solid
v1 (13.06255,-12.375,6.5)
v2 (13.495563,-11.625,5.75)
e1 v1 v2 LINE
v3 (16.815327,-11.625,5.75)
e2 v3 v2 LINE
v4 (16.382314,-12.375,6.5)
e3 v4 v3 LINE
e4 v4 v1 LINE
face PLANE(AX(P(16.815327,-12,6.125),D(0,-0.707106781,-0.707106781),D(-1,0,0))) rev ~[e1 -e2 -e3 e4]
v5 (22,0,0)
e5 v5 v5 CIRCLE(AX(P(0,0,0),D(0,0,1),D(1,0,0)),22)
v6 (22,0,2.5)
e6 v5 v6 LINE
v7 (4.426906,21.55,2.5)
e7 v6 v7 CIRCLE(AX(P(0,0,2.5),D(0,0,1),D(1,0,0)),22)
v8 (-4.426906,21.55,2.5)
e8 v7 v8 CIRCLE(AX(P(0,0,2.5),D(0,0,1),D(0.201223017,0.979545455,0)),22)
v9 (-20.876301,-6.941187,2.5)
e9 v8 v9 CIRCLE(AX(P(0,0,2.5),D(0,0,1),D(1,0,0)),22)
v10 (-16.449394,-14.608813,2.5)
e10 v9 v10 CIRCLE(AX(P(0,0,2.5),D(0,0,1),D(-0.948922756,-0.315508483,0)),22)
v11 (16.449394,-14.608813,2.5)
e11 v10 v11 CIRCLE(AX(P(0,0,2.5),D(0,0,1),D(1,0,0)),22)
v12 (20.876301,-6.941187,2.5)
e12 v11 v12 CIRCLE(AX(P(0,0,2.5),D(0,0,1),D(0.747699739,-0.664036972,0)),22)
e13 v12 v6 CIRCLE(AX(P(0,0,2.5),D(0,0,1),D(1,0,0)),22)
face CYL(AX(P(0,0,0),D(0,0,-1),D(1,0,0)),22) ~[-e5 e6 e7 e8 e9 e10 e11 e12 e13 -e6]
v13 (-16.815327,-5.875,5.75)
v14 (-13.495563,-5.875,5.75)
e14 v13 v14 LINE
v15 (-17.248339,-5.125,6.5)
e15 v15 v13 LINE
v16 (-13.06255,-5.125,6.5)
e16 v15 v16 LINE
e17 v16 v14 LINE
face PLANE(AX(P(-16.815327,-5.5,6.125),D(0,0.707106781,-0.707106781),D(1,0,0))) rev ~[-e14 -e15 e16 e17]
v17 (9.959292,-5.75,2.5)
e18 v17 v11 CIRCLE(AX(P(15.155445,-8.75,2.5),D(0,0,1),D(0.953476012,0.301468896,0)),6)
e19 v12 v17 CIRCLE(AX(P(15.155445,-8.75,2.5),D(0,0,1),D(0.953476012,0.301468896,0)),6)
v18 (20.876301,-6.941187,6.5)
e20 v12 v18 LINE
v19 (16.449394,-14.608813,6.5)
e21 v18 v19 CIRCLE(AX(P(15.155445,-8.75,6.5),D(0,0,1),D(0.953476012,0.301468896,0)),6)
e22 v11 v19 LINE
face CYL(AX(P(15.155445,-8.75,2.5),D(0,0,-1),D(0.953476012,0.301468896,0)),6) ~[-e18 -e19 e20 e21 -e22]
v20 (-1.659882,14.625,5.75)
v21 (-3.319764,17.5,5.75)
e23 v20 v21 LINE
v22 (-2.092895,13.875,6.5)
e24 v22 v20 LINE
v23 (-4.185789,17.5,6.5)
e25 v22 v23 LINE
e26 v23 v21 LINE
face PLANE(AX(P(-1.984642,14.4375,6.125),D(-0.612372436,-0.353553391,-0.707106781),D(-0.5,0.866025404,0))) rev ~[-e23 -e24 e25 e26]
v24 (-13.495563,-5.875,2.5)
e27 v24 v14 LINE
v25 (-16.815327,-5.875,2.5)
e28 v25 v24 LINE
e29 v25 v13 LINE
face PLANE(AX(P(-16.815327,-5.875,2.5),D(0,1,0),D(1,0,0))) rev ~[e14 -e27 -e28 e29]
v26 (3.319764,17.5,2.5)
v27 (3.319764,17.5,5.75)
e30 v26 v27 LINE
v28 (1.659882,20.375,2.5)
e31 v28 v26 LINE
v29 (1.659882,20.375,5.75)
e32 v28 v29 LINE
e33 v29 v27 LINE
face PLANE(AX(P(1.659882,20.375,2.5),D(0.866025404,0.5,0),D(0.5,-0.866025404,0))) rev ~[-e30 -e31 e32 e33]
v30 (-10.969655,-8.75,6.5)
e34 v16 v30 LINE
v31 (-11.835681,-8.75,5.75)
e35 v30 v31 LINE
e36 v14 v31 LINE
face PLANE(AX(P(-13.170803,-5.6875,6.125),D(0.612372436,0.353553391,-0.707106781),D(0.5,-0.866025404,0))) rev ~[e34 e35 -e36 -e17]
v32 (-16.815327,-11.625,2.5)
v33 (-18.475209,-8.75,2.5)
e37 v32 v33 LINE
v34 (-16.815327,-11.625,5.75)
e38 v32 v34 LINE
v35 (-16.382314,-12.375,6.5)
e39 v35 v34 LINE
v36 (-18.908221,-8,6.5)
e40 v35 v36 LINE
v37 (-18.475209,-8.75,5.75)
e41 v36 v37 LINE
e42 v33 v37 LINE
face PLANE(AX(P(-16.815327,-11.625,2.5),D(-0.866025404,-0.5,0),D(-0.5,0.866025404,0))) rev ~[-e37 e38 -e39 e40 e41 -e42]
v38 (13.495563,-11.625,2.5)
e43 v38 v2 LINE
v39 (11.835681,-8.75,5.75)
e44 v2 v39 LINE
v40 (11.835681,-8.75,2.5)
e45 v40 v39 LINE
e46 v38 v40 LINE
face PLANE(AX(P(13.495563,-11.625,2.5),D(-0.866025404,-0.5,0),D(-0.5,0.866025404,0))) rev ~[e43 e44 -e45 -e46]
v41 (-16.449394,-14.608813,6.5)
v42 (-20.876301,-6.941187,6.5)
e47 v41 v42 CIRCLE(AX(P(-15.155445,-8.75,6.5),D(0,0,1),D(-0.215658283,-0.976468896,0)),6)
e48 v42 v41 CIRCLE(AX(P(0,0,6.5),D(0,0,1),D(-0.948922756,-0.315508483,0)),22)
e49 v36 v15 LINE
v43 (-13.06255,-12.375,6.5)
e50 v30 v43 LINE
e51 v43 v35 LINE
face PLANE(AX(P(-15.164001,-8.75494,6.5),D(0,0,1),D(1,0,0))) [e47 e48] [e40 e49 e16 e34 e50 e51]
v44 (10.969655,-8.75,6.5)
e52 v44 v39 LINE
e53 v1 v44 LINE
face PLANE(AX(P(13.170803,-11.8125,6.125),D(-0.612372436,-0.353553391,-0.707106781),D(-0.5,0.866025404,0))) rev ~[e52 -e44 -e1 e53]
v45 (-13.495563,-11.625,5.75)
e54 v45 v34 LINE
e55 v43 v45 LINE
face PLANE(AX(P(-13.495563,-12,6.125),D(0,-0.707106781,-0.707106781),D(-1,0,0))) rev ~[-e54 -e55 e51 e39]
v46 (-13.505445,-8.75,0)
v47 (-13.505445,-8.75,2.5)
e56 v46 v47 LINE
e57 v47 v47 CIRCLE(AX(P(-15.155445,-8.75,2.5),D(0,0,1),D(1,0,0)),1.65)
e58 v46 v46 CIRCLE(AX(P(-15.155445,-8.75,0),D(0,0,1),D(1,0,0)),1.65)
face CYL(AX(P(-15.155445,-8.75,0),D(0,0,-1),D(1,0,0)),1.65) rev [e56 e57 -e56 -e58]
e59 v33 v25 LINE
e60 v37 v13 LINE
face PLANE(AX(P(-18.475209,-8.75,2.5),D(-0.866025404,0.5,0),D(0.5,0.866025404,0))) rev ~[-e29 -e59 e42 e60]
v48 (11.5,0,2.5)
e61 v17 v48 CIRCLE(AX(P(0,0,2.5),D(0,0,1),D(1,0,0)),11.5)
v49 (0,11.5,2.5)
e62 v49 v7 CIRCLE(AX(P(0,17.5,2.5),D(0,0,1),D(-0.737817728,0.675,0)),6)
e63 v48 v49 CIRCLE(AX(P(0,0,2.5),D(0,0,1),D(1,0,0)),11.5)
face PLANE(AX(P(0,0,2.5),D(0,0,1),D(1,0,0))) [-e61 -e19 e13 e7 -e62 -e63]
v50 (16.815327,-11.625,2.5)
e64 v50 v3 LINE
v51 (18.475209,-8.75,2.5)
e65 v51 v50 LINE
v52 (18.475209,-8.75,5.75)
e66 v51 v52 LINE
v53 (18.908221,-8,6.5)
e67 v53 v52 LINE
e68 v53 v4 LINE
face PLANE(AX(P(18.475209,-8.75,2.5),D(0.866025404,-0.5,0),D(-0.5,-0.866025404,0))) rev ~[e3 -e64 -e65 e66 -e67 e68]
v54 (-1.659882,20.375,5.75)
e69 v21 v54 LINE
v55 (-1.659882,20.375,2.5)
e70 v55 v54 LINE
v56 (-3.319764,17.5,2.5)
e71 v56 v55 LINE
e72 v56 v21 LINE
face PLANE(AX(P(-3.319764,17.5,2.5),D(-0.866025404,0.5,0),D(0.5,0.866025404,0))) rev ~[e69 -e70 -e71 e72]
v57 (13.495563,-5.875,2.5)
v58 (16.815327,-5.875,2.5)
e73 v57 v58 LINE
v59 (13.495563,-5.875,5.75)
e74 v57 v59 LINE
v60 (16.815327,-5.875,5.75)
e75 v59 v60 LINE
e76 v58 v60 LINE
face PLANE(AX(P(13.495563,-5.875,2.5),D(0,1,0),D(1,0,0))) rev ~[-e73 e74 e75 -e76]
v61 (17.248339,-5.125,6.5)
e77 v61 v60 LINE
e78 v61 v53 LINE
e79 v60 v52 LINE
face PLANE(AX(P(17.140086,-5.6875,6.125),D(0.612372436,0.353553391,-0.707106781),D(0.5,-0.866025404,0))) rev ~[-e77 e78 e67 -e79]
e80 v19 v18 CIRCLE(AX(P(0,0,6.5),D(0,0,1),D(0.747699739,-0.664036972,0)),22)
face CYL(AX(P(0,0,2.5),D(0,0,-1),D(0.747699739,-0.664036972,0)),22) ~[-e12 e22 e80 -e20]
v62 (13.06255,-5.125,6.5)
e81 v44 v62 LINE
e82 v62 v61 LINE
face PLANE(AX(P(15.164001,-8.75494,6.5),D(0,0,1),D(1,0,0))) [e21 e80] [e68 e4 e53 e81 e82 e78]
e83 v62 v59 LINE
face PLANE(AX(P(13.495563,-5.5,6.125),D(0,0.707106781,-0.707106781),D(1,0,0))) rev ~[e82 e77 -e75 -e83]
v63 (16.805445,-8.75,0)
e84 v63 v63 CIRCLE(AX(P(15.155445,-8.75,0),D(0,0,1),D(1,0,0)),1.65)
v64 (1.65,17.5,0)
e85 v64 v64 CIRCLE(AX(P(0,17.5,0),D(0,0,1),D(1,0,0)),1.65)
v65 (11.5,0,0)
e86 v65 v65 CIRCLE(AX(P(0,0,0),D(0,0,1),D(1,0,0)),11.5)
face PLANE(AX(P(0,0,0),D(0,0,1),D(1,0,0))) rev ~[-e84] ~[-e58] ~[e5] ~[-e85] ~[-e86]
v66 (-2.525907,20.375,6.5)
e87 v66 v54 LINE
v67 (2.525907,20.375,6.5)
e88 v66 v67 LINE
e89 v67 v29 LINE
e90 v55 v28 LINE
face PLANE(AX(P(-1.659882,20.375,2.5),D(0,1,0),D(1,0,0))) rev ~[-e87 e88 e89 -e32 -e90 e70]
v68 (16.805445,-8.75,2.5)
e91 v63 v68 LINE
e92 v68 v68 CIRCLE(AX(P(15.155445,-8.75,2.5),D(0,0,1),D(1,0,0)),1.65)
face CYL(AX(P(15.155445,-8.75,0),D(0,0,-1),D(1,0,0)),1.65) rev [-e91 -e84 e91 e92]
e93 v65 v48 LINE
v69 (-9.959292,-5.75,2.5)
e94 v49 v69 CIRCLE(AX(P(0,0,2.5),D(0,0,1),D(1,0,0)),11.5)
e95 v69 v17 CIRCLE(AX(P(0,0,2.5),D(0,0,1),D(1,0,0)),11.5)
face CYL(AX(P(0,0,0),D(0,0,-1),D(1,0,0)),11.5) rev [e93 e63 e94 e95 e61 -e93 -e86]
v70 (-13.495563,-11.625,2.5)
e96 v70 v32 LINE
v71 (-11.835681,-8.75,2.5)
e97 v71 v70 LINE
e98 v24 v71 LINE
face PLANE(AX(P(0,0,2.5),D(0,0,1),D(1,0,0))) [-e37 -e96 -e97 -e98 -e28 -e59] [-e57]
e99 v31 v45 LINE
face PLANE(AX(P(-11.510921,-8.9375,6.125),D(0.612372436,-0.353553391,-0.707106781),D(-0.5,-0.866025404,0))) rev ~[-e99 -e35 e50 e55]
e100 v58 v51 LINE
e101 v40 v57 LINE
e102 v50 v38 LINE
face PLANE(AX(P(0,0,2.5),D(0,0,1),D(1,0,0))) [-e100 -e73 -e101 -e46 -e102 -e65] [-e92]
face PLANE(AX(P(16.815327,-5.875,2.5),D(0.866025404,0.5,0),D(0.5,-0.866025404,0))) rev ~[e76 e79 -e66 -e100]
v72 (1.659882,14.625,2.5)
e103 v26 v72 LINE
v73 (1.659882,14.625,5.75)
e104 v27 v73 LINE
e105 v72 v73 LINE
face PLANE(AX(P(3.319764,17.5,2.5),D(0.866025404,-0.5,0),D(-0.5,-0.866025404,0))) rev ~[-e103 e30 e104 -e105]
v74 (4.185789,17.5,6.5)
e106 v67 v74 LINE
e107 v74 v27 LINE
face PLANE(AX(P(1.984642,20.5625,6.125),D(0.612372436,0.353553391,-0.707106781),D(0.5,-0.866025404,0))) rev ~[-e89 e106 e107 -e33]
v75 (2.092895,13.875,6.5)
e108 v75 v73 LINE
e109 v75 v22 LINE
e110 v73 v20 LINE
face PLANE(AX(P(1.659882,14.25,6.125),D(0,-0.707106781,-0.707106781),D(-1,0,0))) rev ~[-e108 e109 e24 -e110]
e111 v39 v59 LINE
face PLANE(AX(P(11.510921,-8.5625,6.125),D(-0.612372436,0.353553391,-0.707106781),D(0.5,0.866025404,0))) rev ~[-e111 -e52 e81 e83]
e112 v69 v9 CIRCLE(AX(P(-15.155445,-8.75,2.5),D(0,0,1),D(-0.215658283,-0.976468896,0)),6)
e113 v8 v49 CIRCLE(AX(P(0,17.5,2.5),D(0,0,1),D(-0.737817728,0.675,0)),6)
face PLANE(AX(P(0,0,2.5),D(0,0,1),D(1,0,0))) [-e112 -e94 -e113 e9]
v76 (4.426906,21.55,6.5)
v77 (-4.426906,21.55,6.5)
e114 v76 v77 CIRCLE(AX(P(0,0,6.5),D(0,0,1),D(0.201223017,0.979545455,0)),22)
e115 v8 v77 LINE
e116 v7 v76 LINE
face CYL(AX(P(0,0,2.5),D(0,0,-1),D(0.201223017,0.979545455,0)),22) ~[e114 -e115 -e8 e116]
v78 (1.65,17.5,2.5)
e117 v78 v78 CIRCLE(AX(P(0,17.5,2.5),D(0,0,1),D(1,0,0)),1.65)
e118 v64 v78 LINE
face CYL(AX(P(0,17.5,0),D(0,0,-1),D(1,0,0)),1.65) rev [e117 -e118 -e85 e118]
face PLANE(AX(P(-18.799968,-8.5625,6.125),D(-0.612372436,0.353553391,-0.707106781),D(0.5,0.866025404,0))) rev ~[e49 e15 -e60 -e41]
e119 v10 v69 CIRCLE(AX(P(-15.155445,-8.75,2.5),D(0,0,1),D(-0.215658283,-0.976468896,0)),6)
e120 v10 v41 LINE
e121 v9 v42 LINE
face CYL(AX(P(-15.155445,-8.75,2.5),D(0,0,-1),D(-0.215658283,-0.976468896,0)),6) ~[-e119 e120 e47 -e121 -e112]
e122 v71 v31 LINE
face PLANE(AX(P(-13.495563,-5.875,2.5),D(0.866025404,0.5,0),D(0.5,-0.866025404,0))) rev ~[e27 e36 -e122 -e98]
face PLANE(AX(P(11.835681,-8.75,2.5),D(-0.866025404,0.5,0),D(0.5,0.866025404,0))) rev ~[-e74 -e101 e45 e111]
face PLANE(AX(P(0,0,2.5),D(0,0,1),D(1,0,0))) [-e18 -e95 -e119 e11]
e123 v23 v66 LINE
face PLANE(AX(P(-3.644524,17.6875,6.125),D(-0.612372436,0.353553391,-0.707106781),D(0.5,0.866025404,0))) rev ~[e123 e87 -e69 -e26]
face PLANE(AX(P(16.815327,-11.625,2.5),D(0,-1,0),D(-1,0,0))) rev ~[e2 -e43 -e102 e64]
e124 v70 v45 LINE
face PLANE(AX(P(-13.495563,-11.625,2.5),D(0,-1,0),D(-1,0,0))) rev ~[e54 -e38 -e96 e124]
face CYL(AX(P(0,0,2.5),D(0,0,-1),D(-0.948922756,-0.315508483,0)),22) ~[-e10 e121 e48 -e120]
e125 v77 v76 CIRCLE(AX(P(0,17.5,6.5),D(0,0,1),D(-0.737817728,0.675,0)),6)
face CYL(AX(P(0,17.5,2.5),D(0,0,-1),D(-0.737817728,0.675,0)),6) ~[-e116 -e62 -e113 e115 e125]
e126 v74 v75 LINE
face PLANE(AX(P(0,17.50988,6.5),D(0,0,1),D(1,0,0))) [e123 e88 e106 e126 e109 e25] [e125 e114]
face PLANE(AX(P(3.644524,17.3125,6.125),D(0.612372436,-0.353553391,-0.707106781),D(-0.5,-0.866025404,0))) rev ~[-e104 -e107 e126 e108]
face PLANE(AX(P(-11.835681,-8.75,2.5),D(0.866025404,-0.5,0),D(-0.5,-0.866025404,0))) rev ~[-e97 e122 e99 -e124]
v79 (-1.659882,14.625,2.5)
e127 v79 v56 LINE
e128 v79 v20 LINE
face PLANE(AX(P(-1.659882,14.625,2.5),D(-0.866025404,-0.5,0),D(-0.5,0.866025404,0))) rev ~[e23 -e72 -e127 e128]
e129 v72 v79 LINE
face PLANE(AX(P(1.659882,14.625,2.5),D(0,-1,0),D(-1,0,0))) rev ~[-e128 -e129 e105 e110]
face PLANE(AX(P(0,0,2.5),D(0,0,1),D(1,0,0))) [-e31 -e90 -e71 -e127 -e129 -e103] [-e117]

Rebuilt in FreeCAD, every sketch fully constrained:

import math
import FreeCAD as App
import Part
import Sketcher
from FreeCAD import Vector
Q = App.Units.Quantity


def edges_at(feature, points):
    """Names of the edges that pass closest to the given points."""
    edges = feature.Shape.Edges
    near = lambda p: min(range(len(edges)), key=lambda i: edges[i].distToShape(Part.Vertex(*p))[0])
    return sorted({f"Edge{near(p) + 1}" for p in points})

doc = App.newDocument("Part")
body = doc.addObject("PartDesign::Body", "Body")

# Sketch on XY plane
sketch1 = body.newObject("Sketcher::SketchObject", "Sketch")
sketch1.AttachmentSupport = (doc.getObject("XY_Plane"), [""])
sketch1.MapMode = "FlatFace"
sketch1.addGeometry(Part.Circle(Vector(0, 0, 0), Vector(0, 0, 1), 22), False)
sketch1.addGeometry(Part.Circle(Vector(-15.2, -8.8, 0), Vector(0, 0, 1), 1.6), False)
sketch1.addGeometry(Part.Circle(Vector(15.2, -8.8, 0), Vector(0, 0, 1), 1.6), False)
sketch1.addGeometry(Part.Circle(Vector(0, 0, 0), Vector(0, 0, 1), 11.5), False)
sketch1.addGeometry(Part.Circle(Vector(0, 17.5, 0), Vector(0, 0, 1), 1.6), False)
sketch1.addConstraint(Sketcher.Constraint("Coincident", 0, 3, -1, 1))
sketch1.addConstraint(Sketcher.Constraint("Coincident", 3, 3, -1, 1))
sketch1.addConstraint(Sketcher.Constraint("Equal", 1, 2))
sketch1.addConstraint(Sketcher.Constraint("Equal", 2, 4))
sketch1.addConstraint(Sketcher.Constraint("Symmetric", 1, 3, 2, 3, -2))
sketch1.addConstraint(Sketcher.Constraint("PointOnObject", 4, 3, -2))
sketch1.addConstraint(Sketcher.Constraint("Diameter", 0, Q("44 mm")))
sketch1.addConstraint(Sketcher.Constraint("Diameter", 3, Q("23 mm")))
sketch1.addConstraint(Sketcher.Constraint("Diameter", 1, Q("3.3 mm")))
sketch1.addConstraint(Sketcher.Constraint("DistanceY", -1, 1, 4, 3, Q("17.5 mm")))
sketch1.addConstraint(Sketcher.Constraint("DistanceY", 1, 3, -1, 1, Q("8.75 mm")))
sketch1.addConstraint(Sketcher.Constraint("DistanceX", 1, 3, 2, 3, Q("30.310889 mm")))
pad1 = body.newObject("PartDesign::Pad", "Pad")
pad1.Profile = sketch1
pad1.Length = 2.5

# Sketch on XY plane
sketch2 = body.newObject("Sketcher::SketchObject", "Sketch001")
sketch2.AttachmentSupport = (doc.getObject("XY_Plane"), [""])
sketch2.MapMode = "FlatFace"
sketch2.AttachmentOffset = App.Placement(Vector(0, 0, 2.5), App.Rotation())
sketch2.addGeometry(Part.ArcOfCircle(Part.Circle(Vector(0, 0, 0), Vector(0, 0, 1), 22), math.radians(78), math.radians(102)), False)
sketch2.addGeometry(Part.ArcOfCircle(Part.Circle(Vector(0, 17.5, 0), Vector(0, 0, 1), 6), math.radians(138), math.radians(402)), False)
sketch2.addGeometry(Part.LineSegment(Vector(-1.7, 20.4, 0), Vector(1.7, 20.4, 0)), False)
sketch2.addGeometry(Part.LineSegment(Vector(1.7, 20.4, 0), Vector(3.3, 17.5, 0)), False)
sketch2.addGeometry(Part.LineSegment(Vector(3.3, 17.5, 0), Vector(1.7, 14.6, 0)), False)
sketch2.addGeometry(Part.LineSegment(Vector(1.7, 14.6, 0), Vector(-1.7, 14.6, 0)), False)
sketch2.addGeometry(Part.LineSegment(Vector(-1.7, 14.6, 0), Vector(-3.3, 17.5, 0)), False)
sketch2.addGeometry(Part.LineSegment(Vector(-3.3, 17.5, 0), Vector(-1.7, 20.4, 0)), False)
sketch2.addGeometry(Part.ArcOfCircle(Part.Circle(Vector(-15.2, -8.8, 0), Vector(0, 0, 1), 6), math.radians(-102), math.radians(162)), False)
sketch2.addGeometry(Part.ArcOfCircle(Part.Circle(Vector(0, 0, 0), Vector(0, 0, 1), 22), math.radians(-162), math.radians(-138)), False)
sketch2.addGeometry(Part.LineSegment(Vector(-16.8, -11.6, 0), Vector(-18.5, -8.8, 0)), False)
sketch2.addGeometry(Part.LineSegment(Vector(-18.5, -8.8, 0), Vector(-16.8, -5.9, 0)), False)
sketch2.addGeometry(Part.LineSegment(Vector(-16.8, -5.9, 0), Vector(-13.5, -5.9, 0)), False)
sketch2.addGeometry(Part.LineSegment(Vector(-13.5, -5.9, 0), Vector(-11.8, -8.8, 0)), False)
sketch2.addGeometry(Part.LineSegment(Vector(-11.8, -8.8, 0), Vector(-13.5, -11.6, 0)), False)
sketch2.addGeometry(Part.LineSegment(Vector(-13.5, -11.6, 0), Vector(-16.8, -11.6, 0)), False)
sketch2.addGeometry(Part.ArcOfCircle(Part.Circle(Vector(0, 0, 0), Vector(0, 0, 1), 22), math.radians(-42), math.radians(-18)), False)
sketch2.addGeometry(Part.ArcOfCircle(Part.Circle(Vector(15.2, -8.8, 0), Vector(0, 0, 1), 6), math.radians(18), math.radians(282)), False)
sketch2.addGeometry(Part.LineSegment(Vector(18.5, -8.8, 0), Vector(16.8, -11.6, 0)), False)
sketch2.addGeometry(Part.LineSegment(Vector(16.8, -11.6, 0), Vector(13.5, -11.6, 0)), False)
sketch2.addGeometry(Part.LineSegment(Vector(13.5, -11.6, 0), Vector(11.8, -8.8, 0)), False)
sketch2.addGeometry(Part.LineSegment(Vector(11.8, -8.8, 0), Vector(13.5, -5.9, 0)), False)
sketch2.addGeometry(Part.LineSegment(Vector(13.5, -5.9, 0), Vector(16.8, -5.9, 0)), False)
sketch2.addGeometry(Part.LineSegment(Vector(16.8, -5.9, 0), Vector(18.5, -8.8, 0)), False)
sketch2.addConstraint(Sketcher.Constraint("Coincident", 0, 1, 1, 2))
sketch2.addConstraint(Sketcher.Constraint("Coincident", 1, 1, 0, 2))
sketch2.addConstraint(Sketcher.Constraint("Coincident", 2, 2, 3, 1))
sketch2.addConstraint(Sketcher.Constraint("Coincident", 3, 2, 4, 1))
sketch2.addConstraint(Sketcher.Constraint("Coincident", 4, 2, 5, 1))
sketch2.addConstraint(Sketcher.Constraint("Coincident", 5, 2, 6, 1))
sketch2.addConstraint(Sketcher.Constraint("Coincident", 6, 2, 7, 1))
sketch2.addConstraint(Sketcher.Constraint("Coincident", 7, 2, 2, 1))
sketch2.addConstraint(Sketcher.Constraint("Coincident", 8, 1, 9, 2))
sketch2.addConstraint(Sketcher.Constraint("Coincident", 9, 1, 8, 2))
sketch2.addConstraint(Sketcher.Constraint("Coincident", 10, 2, 11, 1))
sketch2.addConstraint(Sketcher.Constraint("Coincident", 11, 2, 12, 1))
sketch2.addConstraint(Sketcher.Constraint("Coincident", 12, 2, 13, 1))
sketch2.addConstraint(Sketcher.Constraint("Coincident", 13, 2, 14, 1))
sketch2.addConstraint(Sketcher.Constraint("Coincident", 14, 2, 15, 1))
sketch2.addConstraint(Sketcher.Constraint("Coincident", 15, 2, 10, 1))
sketch2.addConstraint(Sketcher.Constraint("Coincident", 16, 1, 17, 2))
sketch2.addConstraint(Sketcher.Constraint("Coincident", 17, 1, 16, 2))
sketch2.addConstraint(Sketcher.Constraint("Coincident", 18, 2, 19, 1))
sketch2.addConstraint(Sketcher.Constraint("Coincident", 19, 2, 20, 1))
sketch2.addConstraint(Sketcher.Constraint("Coincident", 20, 2, 21, 1))
sketch2.addConstraint(Sketcher.Constraint("Coincident", 21, 2, 22, 1))
sketch2.addConstraint(Sketcher.Constraint("Coincident", 22, 2, 23, 1))
sketch2.addConstraint(Sketcher.Constraint("Coincident", 23, 2, 18, 1))
sketch2.addConstraint(Sketcher.Constraint("Horizontal", 2))
sketch2.addConstraint(Sketcher.Constraint("Horizontal", 5))
sketch2.addConstraint(Sketcher.Constraint("Horizontal", 12))
sketch2.addConstraint(Sketcher.Constraint("Horizontal", 15))
sketch2.addConstraint(Sketcher.Constraint("Horizontal", 19))
sketch2.addConstraint(Sketcher.Constraint("Horizontal", 22))
sketch2.addConstraint(Sketcher.Constraint("Coincident", 0, 3, -1, 1))
sketch2.addConstraint(Sketcher.Constraint("Coincident", 9, 3, -1, 1))
sketch2.addConstraint(Sketcher.Constraint("Coincident", 16, 3, -1, 1))
sketch2.addConstraint(Sketcher.Constraint("Equal", 1, 8))
sketch2.addConstraint(Sketcher.Constraint("Equal", 0, 9))
sketch2.addConstraint(Sketcher.Constraint("Equal", 9, 16))
sketch2.addConstraint(Sketcher.Constraint("Equal", 8, 17))
sketch2.addConstraint(Sketcher.Constraint("Symmetric", 8, 3, 17, 3, -2))
sketch2.addConstraint(Sketcher.Constraint("Symmetric", 3, 2, 6, 2, -2))
sketch2.addConstraint(Sketcher.Constraint("Symmetric", 15, 2, 18, 2, -2))
sketch2.addConstraint(Sketcher.Constraint("Symmetric", 13, 2, 20, 2, -2))
sketch2.addConstraint(Sketcher.Constraint("Symmetric", 12, 2, 21, 2, -2))
sketch2.addConstraint(Sketcher.Constraint("Symmetric", 10, 2, 23, 2, -2))
sketch2.addConstraint(Sketcher.Constraint("PointOnObject", 1, 3, -2))
sketch2.addConstraint(Sketcher.Constraint("Parallel", 3, 6))
sketch2.addConstraint(Sketcher.Constraint("Parallel", 4, 7))
sketch2.addConstraint(Sketcher.Constraint("Parallel", 6, 10))
sketch2.addConstraint(Sketcher.Constraint("Parallel", 7, 11))
sketch2.addConstraint(Sketcher.Constraint("Parallel", 10, 13))
sketch2.addConstraint(Sketcher.Constraint("Parallel", 11, 14))
sketch2.addConstraint(Sketcher.Constraint("Parallel", 14, 18))
sketch2.addConstraint(Sketcher.Constraint("Parallel", 13, 20))
sketch2.addConstraint(Sketcher.Constraint("Parallel", 20, 23))
sketch2.addConstraint(Sketcher.Constraint("Horizontal", 1, 3, 3, 2))
sketch2.addConstraint(Sketcher.Constraint("Horizontal", 17, 3, 10, 2))
sketch2.addConstraint(Sketcher.Constraint("Horizontal", 10, 2, 13, 2))
sketch2.addConstraint(Sketcher.Constraint("Vertical", 2, 2, 4, 2))
sketch2.addConstraint(Sketcher.Constraint("Vertical", 12, 2, 14, 2))
sketch2.addConstraint(Sketcher.Constraint("Equal", 5, 12))
sketch2.addConstraint(Sketcher.Constraint("Equal", 7, 10))
sketch2.addConstraint(Sketcher.Constraint("Radius", 0, Q("22 mm")))
sketch2.addConstraint(Sketcher.Constraint("Radius", 1, Q("6 mm")))
sketch2.addConstraint(Sketcher.Constraint("Angle", 3, Q("-60 deg")))
sketch2.addConstraint(Sketcher.Constraint("DistanceY", -1, 1, 1, 3, Q("17.5 mm")))
sketch2.addConstraint(Sketcher.Constraint("DistanceY", 17, 3, 0, 1, Q("30.3 mm")))
sketch2.addConstraint(Sketcher.Constraint("DistanceY", 4, 2, 2, 2, Q("5.75 mm")))
sketch2.addConstraint(Sketcher.Constraint("DistanceX", 9, 1, -1, 1, Q("20.876301 mm")))
sketch2.addConstraint(Sketcher.Constraint("DistanceX", 2, 1, 2, 2, Q("3.319764 mm")))
sketch2.addConstraint(Sketcher.Constraint("DistanceX", 10, 2, -1, 1, Q("18.475209 mm")))
pad2 = body.newObject("PartDesign::Pad", "Pad001")
pad2.Profile = sketch2
pad2.Length = 4
doc.recompute()

chamfer = body.newObject("PartDesign::Chamfer", "Chamfer")
chamfer.Base = (pad2, edges_at(pad2, [
    (2.49, 16.062, 6.5),
    (0, 14.625, 6.5),
    (-2.49, 16.062, 6.5),
    (-2.49, 18.938, 6.5),
    (2.49, 18.938, 6.5),
    (-15.155, -5.875, 6.5),
    (-12.666, -7.312, 6.5),
    (-12.666, -10.188, 6.5),
    (-15.155, -11.625, 6.5),
    (-17.645, -7.312, 6.5),
    (12.666, -10.188, 6.5),
    (12.666, -7.312, 6.5),
    (15.155, -5.875, 6.5),
    (17.645, -7.312, 6.5),
    (15.155, -11.625, 6.5),
]))
chamfer.Size = 0.75

doc.recompute()
